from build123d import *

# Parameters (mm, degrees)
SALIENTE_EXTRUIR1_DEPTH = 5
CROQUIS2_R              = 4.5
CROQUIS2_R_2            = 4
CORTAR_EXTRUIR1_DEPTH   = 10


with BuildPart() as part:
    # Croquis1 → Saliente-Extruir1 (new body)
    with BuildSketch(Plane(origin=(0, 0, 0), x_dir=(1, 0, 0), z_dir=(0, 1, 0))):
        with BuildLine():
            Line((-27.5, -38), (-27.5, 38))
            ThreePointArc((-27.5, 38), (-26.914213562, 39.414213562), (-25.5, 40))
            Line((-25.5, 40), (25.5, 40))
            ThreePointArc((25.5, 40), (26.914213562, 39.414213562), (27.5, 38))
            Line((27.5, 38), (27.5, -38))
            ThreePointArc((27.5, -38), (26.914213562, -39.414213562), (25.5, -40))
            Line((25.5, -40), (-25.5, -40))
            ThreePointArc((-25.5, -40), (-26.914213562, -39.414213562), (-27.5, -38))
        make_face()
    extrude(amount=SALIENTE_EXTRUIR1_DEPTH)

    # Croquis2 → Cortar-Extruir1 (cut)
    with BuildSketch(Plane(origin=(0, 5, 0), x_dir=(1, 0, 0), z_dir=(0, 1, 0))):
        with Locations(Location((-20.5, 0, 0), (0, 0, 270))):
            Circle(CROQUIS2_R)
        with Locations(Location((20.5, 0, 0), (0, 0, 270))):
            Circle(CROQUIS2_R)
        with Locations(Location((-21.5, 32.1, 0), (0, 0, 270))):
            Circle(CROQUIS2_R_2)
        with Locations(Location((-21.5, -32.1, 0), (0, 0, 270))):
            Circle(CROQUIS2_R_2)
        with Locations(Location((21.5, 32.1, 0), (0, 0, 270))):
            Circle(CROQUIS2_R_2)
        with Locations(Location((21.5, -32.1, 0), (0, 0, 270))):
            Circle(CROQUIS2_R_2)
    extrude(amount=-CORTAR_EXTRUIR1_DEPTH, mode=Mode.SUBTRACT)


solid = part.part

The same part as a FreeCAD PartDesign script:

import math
import FreeCAD as App
import Part
import Sketcher
from FreeCAD import Vector
Q = App.Units.Quantity

doc = App.newDocument("Part")
body = doc.addObject("PartDesign::Body", "Body")

sketch1 = body.newObject("Sketcher::SketchObject", "Sketch")
sketch1.AttachmentSupport = (doc.getObject("XZ_Plane"), [""])
sketch1.MapMode = "FlatFace"
sketch1.addGeometry([
    Part.LineSegment(Vector(-27.5, -38, 0), Vector(-27.5, 38, 0)),
    Part.ArcOfCircle(Part.Circle(Vector(-25.5, 38, 0), Vector(0, 0, 1), 2), math.radians(90), math.radians(180)),
    Part.LineSegment(Vector(-25.5, 40, 0), Vector(25.5, 40, 0)),
    Part.ArcOfCircle(Part.Circle(Vector(25.5, 38, 0), Vector(0, 0, 1), 2), math.radians(0), math.radians(90)),
    Part.LineSegment(Vector(27.5, 38, 0), Vector(27.5, -38, 0)),
    Part.ArcOfCircle(Part.Circle(Vector(25.5, -38, 0), Vector(0, 0, 1), 2), math.radians(-90), math.radians(0)),
    Part.LineSegment(Vector(25.5, -40, 0), Vector(-25.5, -40, 0)),
    Part.ArcOfCircle(Part.Circle(Vector(-25.5, -38, 0), Vector(0, 0, 1), 2), math.radians(-180), math.radians(-90)),
], False)
sketch1.addConstraint([
    Sketcher.Constraint("Tangent", 0, 2, 1, 2),
    Sketcher.Constraint("Tangent", 1, 1, 2, 1),
    Sketcher.Constraint("Tangent", 2, 2, 3, 2),
    Sketcher.Constraint("Tangent", 3, 1, 4, 1),
    Sketcher.Constraint("Tangent", 4, 2, 5, 2),
    Sketcher.Constraint("Tangent", 5, 1, 6, 1),
    Sketcher.Constraint("Tangent", 6, 2, 7, 2),
    Sketcher.Constraint("Tangent", 7, 1, 0, 1),
    Sketcher.Constraint("Vertical", 0),
    Sketcher.Constraint("Horizontal", 2),
    Sketcher.Constraint("Vertical", 4),
    Sketcher.Constraint("Horizontal", 6),
    Sketcher.Constraint("Equal", 1, 3),
    Sketcher.Constraint("Equal", 3, 5),
    Sketcher.Constraint("Equal", 5, 7),
    Sketcher.Constraint("Symmetric", 1, 3, 5, 3, -1, 1),
    Sketcher.Constraint("Radius", 1, Q("2 mm")),
    Sketcher.Constraint("DistanceX", 2, 1, 2, 2, Q("51 mm")),
    Sketcher.Constraint("DistanceY", 0, 1, 0, 2, Q("76 mm")),
])
pad1 = body.newObject("PartDesign::Pad", "Pad")
pad1.Profile = sketch1
pad1.Length = 5
pad1.Reversed = True

sketch2 = body.newObject("Sketcher::SketchObject", "Sketch001")
sketch2.AttachmentSupport = (doc.getObject("XZ_Plane"), [""])
sketch2.MapMode = "FlatFace"
sketch2.AttachmentOffset = App.Placement(Vector(0, 0, -5), App.Rotation())
sketch2.addGeometry([
    Part.Circle(Vector(-20.5, 0, 0), Vector(0, 0, 1), 4.5),
    Part.Circle(Vector(20.5, 0, 0), Vector(0, 0, 1), 4.5),
    Part.Circle(Vector(-21.5, -32.1, 0), Vector(0, 0, 1), 4),
    Part.Circle(Vector(-21.5, 32.1, 0), Vector(0, 0, 1), 4),
    Part.Circle(Vector(21.5, -32.1, 0), Vector(0, 0, 1), 4),
    Part.Circle(Vector(21.5, 32.1, 0), Vector(0, 0, 1), 4),
], False)
sketch2.addConstraint([
    Sketcher.Constraint("Equal", 0, 1),
    Sketcher.Constraint("Equal", 2, 3),
    Sketcher.Constraint("Equal", 3, 4),
    Sketcher.Constraint("Equal", 4, 5),
    Sketcher.Constraint("Symmetric", 0, 3, 1, 3, -1, 1),
    Sketcher.Constraint("Symmetric", 3, 3, 4, 3, -1, 1),
    Sketcher.Constraint("Symmetric", 2, 3, 5, 3, -1, 1),
    Sketcher.Constraint("Symmetric", 2, 3, 4, 3, -2),
    Sketcher.Constraint("PointOnObject", 0, 3, -1),
    Sketcher.Constraint("Diameter", 0, Q("9 mm")),
    Sketcher.Constraint("Diameter", 2, Q("8 mm")),
    Sketcher.Constraint("DistanceX", 0, 3, 1, 3, Q("41 mm")),
    Sketcher.Constraint("DistanceX", 2, 3, 0, 3, Q("1 mm")),
    Sketcher.Constraint("DistanceY", 2, 3, -1, 1, Q("32.1 mm")),
])
pocket1 = body.newObject("PartDesign::Pocket", "Pocket")
pocket1.Profile = sketch2
pocket1.Length = 10
pocket1.Reversed = True

doc.recompute()
